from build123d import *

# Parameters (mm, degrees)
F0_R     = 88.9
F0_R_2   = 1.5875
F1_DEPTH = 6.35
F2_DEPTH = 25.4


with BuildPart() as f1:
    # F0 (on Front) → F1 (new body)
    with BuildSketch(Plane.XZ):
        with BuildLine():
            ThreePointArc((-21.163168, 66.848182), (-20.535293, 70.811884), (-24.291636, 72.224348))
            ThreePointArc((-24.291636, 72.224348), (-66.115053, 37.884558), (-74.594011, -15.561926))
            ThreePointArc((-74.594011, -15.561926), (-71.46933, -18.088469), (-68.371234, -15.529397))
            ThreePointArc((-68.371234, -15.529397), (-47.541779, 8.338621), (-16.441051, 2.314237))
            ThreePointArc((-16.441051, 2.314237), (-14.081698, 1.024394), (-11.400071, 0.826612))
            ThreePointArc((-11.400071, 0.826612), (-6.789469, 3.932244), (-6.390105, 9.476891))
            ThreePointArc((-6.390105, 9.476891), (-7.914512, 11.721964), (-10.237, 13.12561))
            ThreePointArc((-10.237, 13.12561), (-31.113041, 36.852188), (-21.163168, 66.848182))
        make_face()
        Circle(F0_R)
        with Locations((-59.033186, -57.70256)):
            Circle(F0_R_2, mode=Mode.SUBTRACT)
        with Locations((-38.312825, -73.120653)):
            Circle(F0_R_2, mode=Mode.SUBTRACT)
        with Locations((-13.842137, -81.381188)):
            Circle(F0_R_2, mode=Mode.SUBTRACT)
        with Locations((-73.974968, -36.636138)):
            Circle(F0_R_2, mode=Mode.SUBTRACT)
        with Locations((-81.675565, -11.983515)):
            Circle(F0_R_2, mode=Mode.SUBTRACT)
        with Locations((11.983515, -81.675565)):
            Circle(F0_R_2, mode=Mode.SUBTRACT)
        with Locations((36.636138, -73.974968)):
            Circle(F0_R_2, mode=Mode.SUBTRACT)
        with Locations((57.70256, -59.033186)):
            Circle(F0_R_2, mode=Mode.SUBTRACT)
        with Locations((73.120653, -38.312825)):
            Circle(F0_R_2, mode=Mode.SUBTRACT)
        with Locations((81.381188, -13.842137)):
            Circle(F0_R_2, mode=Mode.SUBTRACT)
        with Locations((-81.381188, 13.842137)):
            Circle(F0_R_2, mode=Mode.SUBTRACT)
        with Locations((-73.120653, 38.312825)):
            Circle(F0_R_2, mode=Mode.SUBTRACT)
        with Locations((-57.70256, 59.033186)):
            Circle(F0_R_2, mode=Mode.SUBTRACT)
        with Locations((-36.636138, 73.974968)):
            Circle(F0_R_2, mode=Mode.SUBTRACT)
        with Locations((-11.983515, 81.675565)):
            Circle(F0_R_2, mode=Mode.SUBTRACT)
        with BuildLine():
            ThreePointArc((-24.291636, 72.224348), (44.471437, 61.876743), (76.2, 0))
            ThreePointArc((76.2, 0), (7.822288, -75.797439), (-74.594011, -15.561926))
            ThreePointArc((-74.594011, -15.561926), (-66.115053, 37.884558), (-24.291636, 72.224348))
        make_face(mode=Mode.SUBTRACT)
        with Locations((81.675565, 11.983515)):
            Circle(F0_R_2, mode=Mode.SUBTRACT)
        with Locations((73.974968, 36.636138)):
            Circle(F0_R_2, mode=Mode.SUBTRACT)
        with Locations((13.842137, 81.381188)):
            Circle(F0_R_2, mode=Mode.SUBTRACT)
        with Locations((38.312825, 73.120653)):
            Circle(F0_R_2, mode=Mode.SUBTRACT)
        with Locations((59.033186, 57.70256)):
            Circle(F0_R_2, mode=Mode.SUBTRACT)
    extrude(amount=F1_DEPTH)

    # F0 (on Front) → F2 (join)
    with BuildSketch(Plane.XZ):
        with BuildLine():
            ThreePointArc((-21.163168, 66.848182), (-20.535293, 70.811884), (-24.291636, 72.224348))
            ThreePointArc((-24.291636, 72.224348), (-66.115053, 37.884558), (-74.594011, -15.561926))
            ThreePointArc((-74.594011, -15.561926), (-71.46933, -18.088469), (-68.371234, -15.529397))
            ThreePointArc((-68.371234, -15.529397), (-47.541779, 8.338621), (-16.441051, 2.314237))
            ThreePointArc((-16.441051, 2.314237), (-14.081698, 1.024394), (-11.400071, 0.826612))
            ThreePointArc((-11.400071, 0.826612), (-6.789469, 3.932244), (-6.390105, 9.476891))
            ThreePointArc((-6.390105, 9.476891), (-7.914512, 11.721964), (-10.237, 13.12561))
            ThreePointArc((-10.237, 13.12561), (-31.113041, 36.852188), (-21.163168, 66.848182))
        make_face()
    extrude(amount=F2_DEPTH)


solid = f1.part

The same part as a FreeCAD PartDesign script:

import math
import FreeCAD as App
import Part
import Sketcher
from FreeCAD import Vector
Q = App.Units.Quantity

doc = App.newDocument("Part")
body = doc.addObject("PartDesign::Body", "Body")

# Sketch on XZ plane
sketch1 = body.newObject("Sketcher::SketchObject", "Sketch")
sketch1.AttachmentSupport = (doc.getObject("XZ_Plane"), [""])
sketch1.MapMode = "FlatFace"
sketch1.addGeometry(Part.Circle(Vector(0, 0, 0), Vector(0, 0, 1), 88.9), False)
sketch1.addGeometry(Part.Circle(Vector(-59, -57.7, 0), Vector(0, 0, 1), 1.6), False)
sketch1.addGeometry(Part.Circle(Vector(-38.3, -73.1, 0), Vector(0, 0, 1), 1.6), False)
sketch1.addGeometry(Part.Circle(Vector(-13.8, -81.4, 0), Vector(0, 0, 1), 1.6), False)
sketch1.addGeometry(Part.Circle(Vector(-74, -36.6, 0), Vector(0, 0, 1), 1.6), False)
sketch1.addGeometry(Part.Circle(Vector(-81.7, -12, 0), Vector(0, 0, 1), 1.6), False)
sketch1.addGeometry(Part.Circle(Vector(12, -81.7, 0), Vector(0, 0, 1), 1.6), False)
sketch1.addGeometry(Part.Circle(Vector(36.6, -74, 0), Vector(0, 0, 1), 1.6), False)
sketch1.addGeometry(Part.Circle(Vector(57.7, -59, 0), Vector(0, 0, 1), 1.6), False)
sketch1.addGeometry(Part.Circle(Vector(73.1, -38.3, 0), Vector(0, 0, 1), 1.6), False)
sketch1.addGeometry(Part.Circle(Vector(81.4, -13.8, 0), Vector(0, 0, 1), 1.6), False)
sketch1.addGeometry(Part.Circle(Vector(-81.4, 13.8, 0), Vector(0, 0, 1), 1.6), False)
sketch1.addGeometry(Part.Circle(Vector(-73.1, 38.3, 0), Vector(0, 0, 1), 1.6), False)
sketch1.addGeometry(Part.Circle(Vector(-57.7, 59, 0), Vector(0, 0, 1), 1.6), False)
sketch1.addGeometry(Part.Circle(Vector(-36.6, 74, 0), Vector(0, 0, 1), 1.6), False)
sketch1.addGeometry(Part.Circle(Vector(-12, 81.7, 0), Vector(0, 0, 1), 1.6), False)
sketch1.addGeometry(Part.ArcOfCircle(Part.Circle(Vector(0, 0, 0), Vector(0, 0, 1), 76.2), math.radians(109), math.radians(192)), False)
sketch1.addGeometry(Part.ArcOfCircle(Part.Circle(Vector(0, 0, 0), Vector(0, 0, 1), 76.2), math.radians(0), math.radians(109)), False)
sketch1.addGeometry(Part.ArcOfCircle(Part.Circle(Vector(0, 0, 0), Vector(0, 0, 1), 76.2), math.radians(-168), math.radians(0)), False)
sketch1.addGeometry(Part.Circle(Vector(81.7, 12, 0), Vector(0, 0, 1), 1.6), False)
sketch1.addGeometry(Part.Circle(Vector(74, 36.6, 0), Vector(0, 0, 1), 1.6), False)
sketch1.addGeometry(Part.Circle(Vector(13.8, 81.4, 0), Vector(0, 0, 1), 1.6), False)
sketch1.addGeometry(Part.Circle(Vector(38.3, 73.1, 0), Vector(0, 0, 1), 1.6), False)
sketch1.addGeometry(Part.Circle(Vector(59, 57.7, 0), Vector(0, 0, 1), 1.6), False)
sketch1.addConstraint(Sketcher.Constraint("Tangent", 16, 1, 17, 2))
sketch1.addConstraint(Sketcher.Constraint("Tangent", 17, 1, 18, 2))
sketch1.addConstraint(Sketcher.Constraint("Tangent", 18, 1, 16, 2))
sketch1.addConstraint(Sketcher.Constraint("Coincident", 0, 3, -1, 1))
sketch1.addConstraint(Sketcher.Constraint("Coincident", 16, 3, -1, 1))
sketch1.addConstraint(Sketcher.Constraint("Equal", 1, 2))
sketch1.addConstraint(Sketcher.Constraint("Equal", 2, 3))
sketch1.addConstraint(Sketcher.Constraint("Equal", 3, 4))
sketch1.addConstraint(Sketcher.Constraint("Equal", 4, 5))
sketch1.addConstraint(Sketcher.Constraint("Equal", 5, 6))
sketch1.addConstraint(Sketcher.Constraint("Equal", 6, 7))
sketch1.addConstraint(Sketcher.Constraint("Equal", 7, 8))
sketch1.addConstraint(Sketcher.Constraint("Equal", 8, 9))
sketch1.addConstraint(Sketcher.Constraint("Equal", 9, 10))
sketch1.addConstraint(Sketcher.Constraint("Equal", 10, 11))
sketch1.addConstraint(Sketcher.Constraint("Equal", 11, 12))
sketch1.addConstraint(Sketcher.Constraint("Equal", 12, 13))
sketch1.addConstraint(Sketcher.Constraint("Equal", 13, 14))
sketch1.addConstraint(Sketcher.Constraint("Equal", 14, 15))
sketch1.addConstraint(Sketcher.Constraint("Equal", 15, 19))
sketch1.addConstraint(Sketcher.Constraint("Equal", 19, 20))
sketch1.addConstraint(Sketcher.Constraint("Equal", 20, 21))
sketch1.addConstraint(Sketcher.Constraint("Equal", 21, 22))
sketch1.addConstraint(Sketcher.Constraint("Equal", 22, 23))
sketch1.addConstraint(Sketcher.Constraint("Symmetric", 10, 3, 11, 3, -1, 1))
sketch1.addConstraint(Sketcher.Constraint("Symmetric", 9, 3, 12, 3, -1, 1))
sketch1.addConstraint(Sketcher.Constraint("Symmetric", 8, 3, 13, 3, -1, 1))
sketch1.addConstraint(Sketcher.Constraint("Symmetric", 7, 3, 14, 3, -1, 1))
sketch1.addConstraint(Sketcher.Constraint("Symmetric", 6, 3, 15, 3, -1, 1))
sketch1.addConstraint(Sketcher.Constraint("Symmetric", 5, 3, 19, 3, -1, 1))
sketch1.addConstraint(Sketcher.Constraint("Symmetric", 4, 3, 20, 3, -1, 1))
sketch1.addConstraint(Sketcher.Constraint("Symmetric", 3, 3, 21, 3, -1, 1))
sketch1.addConstraint(Sketcher.Constraint("Symmetric", 2, 3, 22, 3, -1, 1))
sketch1.addConstraint(Sketcher.Constraint("Symmetric", 1, 3, 23, 3, -1, 1))
sketch1.addConstraint(Sketcher.Constraint("PointOnObject", 17, 1, -1))
sketch1.addConstraint(Sketcher.Constraint("Diameter", 0, Q("7 in")))
sketch1.addConstraint(Sketcher.Constraint("Radius", 16, Q("3 in")))
sketch1.addConstraint(Sketcher.Constraint("Diameter", 1, Q("0.125 in")))
sketch1.addConstraint(Sketcher.Constraint("DistanceX", 1, 3, 6, 3, Q("71.016701 mm")))
sketch1.addConstraint(Sketcher.Constraint("DistanceY", 3, 3, 8, 3, Q("22.348002 mm")))
sketch1.addConstraint(Sketcher.Constraint("DistanceX", 11, 3, 1, 3, Q("22.348002 mm")))
sketch1.addConstraint(Sketcher.Constraint("DistanceY", 5, 3, 13, 3, Q("71.016701 mm")))
sketch1.addConstraint(Sketcher.Constraint("DistanceY", 1, 3, -1, 1, Q("57.70256 mm")))
sketch1.addConstraint(Sketcher.Constraint("DistanceX", 4, 3, -1, 1, Q("73.974968 mm")))
sketch1.addConstraint(Sketcher.Constraint("DistanceY", 4, 3, -1, 1, Q("36.636138 mm")))
sketch1.addConstraint(Sketcher.Constraint("DistanceX", -1, 1, 7, 3, Q("36.636138 mm")))
sketch1.addConstraint(Sketcher.Constraint("DistanceY", 7, 3, -1, 1, Q("73.974968 mm")))
sketch1.addConstraint(Sketcher.Constraint("DistanceX", -1, 1, 8, 3, Q("57.70256 mm")))
sketch1.addConstraint(Sketcher.Constraint("DistanceX", 18, 1, -1, 1, Q("74.594011 mm")))
sketch1.addConstraint(Sketcher.Constraint("DistanceX", 1, 3, 2, 3, Q("20.720361 mm")))
sketch1.addConstraint(Sketcher.Constraint("DistanceX", 1, 3, 3, 3, Q("45.191049 mm")))
sketch1.addConstraint(Sketcher.Constraint("DistanceX", 4, 3, 3, 3, Q("60.132831 mm")))
sketch1.addConstraint(Sketcher.Constraint("DistanceY", 3, 3, 4, 3, Q("44.74505 mm")))
sketch1.addConstraint(Sketcher.Constraint("DistanceX", 5, 3, 1, 3, Q("22.642379 mm")))
sketch1.addConstraint(Sketcher.Constraint("DistanceY", 2, 3, 5, 3, Q("61.137138 mm")))
sketch1.addConstraint(Sketcher.Constraint("DistanceY", 6, 3, 8, 3, Q("22.642379 mm")))
sketch1.addConstraint(Sketcher.Constraint("DistanceY", 8, 3, 9, 3, Q("20.720361 mm")))
sketch1.addConstraint(Sketcher.Constraint("DistanceX", 6, 3, 9, 3, Q("61.137138 mm")))
sketch1.addConstraint(Sketcher.Constraint("DistanceY", 8, 3, 10, 3, Q("45.191049 mm")))
sketch1.addConstraint(Sketcher.Constraint("DistanceY", 16, 1, 14, 3, Q("1.75062 mm")))
pad1 = body.newObject("PartDesign::Pad", "Pad")
pad1.Profile = sketch1
pad1.Length = Q("0.25 in")

# Sketch on XZ plane
sketch2 = body.newObject("Sketcher::SketchObject", "Sketch001")
sketch2.AttachmentSupport = (doc.getObject("XZ_Plane"), [""])
sketch2.MapMode = "FlatFace"
sketch2.addGeometry(Part.ArcOfCircle(Part.Circle(Vector(-23.3, 69.2, 0), Vector(0, 0, 1), 3.2), math.radians(-48), math.radians(109)), False)
sketch2.addGeometry(Part.ArcOfCircle(Part.Circle(Vector(0, 0, 0), Vector(0, 0, 1), 76.2), math.radians(109), math.radians(192)), False)
sketch2.addGeometry(Part.ArcOfCircle(Part.Circle(Vector(-71.5, -14.9, 0), Vector(0, 0, 1), 3.2), math.radians(-168), math.radians(-11)), False)
sketch2.addGeometry(Part.ArcOfCircle(Part.Circle(Vector(-37.2, -21.7, 0), Vector(0, 0, 1), 31.7), math.radians(49), math.radians(169)), False)
sketch2.addGeometry(Part.ArcOfCircle(Part.Circle(Vector(-12.3, 7.1, 0), Vector(0, 0, 1), 6.3), math.radians(-131), math.radians(-82)), False)
sketch2.addGeometry(Part.ArcOfCircle(Part.Circle(Vector(-12.3, 7.1, 0), Vector(0, 0, 1), 6.4), math.radians(-82), math.radians(22)), False)
sketch2.addGeometry(Part.ArcOfCircle(Part.Circle(Vector(-12.3, 7.1, 0), Vector(0, 0, 1), 6.3), math.radians(22), math.radians(71)), False)
sketch2.addGeometry(Part.ArcOfCircle(Part.Circle(Vector(0, 43.2, 0), Vector(0, 0, 1), 31.8), math.radians(132), math.radians(251)), False)
sketch2.addConstraint(Sketcher.Constraint("Tangent", 0, 2, 1, 1))
sketch2.addConstraint(Sketcher.Constraint("Tangent", 1, 2, 2, 1))
sketch2.addConstraint(Sketcher.Constraint("Tangent", 2, 2, 3, 2))
sketch2.addConstraint(Sketcher.Constraint("Tangent", 3, 1, 4, 1))
sketch2.addConstraint(Sketcher.Constraint("Tangent", 4, 2, 5, 1))
sketch2.addConstraint(Sketcher.Constraint("Tangent", 5, 2, 6, 1))
sketch2.addConstraint(Sketcher.Constraint("Tangent", 6, 2, 7, 2))
sketch2.addConstraint(Sketcher.Constraint("Tangent", 7, 1, 0, 1))
sketch2.addConstraint(Sketcher.Constraint("Coincident", 1, 3, -1, 1))
sketch2.addConstraint(Sketcher.Constraint("Coincident", 6, 3, 4, 3))
sketch2.addConstraint(Sketcher.Constraint("Equal", 0, 2))
sketch2.addConstraint(Sketcher.Constraint("Equal", 3, 7))
sketch2.addConstraint(Sketcher.Constraint("PointOnObject", 7, 3, -2))
sketch2.addConstraint(Sketcher.Constraint("Radius", 1, Q("3 in")))
sketch2.addConstraint(Sketcher.Constraint("Radius", 3, Q("1.25 in")))
sketch2.addConstraint(Sketcher.Constraint("Radius", 4, Q("0.2499999 in")))
sketch2.addConstraint(Sketcher.Constraint("Radius", 0, Q("0.125 in")))
sketch2.addConstraint(Sketcher.Constraint("DistanceY", -1, 1, 7, 3, Q("1.7 in")))
sketch2.addConstraint(Sketcher.Constraint("DistanceX", 4, 3, -1, 1, Q("12.284401 mm")))
sketch2.addConstraint(Sketcher.Constraint("DistanceX", 1, 2, -1, 1, Q("74.594011 mm")))
sketch2.addConstraint(Sketcher.Constraint("DistanceX", 4, 2, -1, 1, Q("11.400071 mm")))
sketch2.addConstraint(Sketcher.Constraint("DistanceY", -1, 1, 5, 2, Q("9.476891 mm")))
pad2 = body.newObject("PartDesign::Pad", "Pad001")
pad2.Profile = sketch2
pad2.Length = Q("1 in")

doc.recompute()
